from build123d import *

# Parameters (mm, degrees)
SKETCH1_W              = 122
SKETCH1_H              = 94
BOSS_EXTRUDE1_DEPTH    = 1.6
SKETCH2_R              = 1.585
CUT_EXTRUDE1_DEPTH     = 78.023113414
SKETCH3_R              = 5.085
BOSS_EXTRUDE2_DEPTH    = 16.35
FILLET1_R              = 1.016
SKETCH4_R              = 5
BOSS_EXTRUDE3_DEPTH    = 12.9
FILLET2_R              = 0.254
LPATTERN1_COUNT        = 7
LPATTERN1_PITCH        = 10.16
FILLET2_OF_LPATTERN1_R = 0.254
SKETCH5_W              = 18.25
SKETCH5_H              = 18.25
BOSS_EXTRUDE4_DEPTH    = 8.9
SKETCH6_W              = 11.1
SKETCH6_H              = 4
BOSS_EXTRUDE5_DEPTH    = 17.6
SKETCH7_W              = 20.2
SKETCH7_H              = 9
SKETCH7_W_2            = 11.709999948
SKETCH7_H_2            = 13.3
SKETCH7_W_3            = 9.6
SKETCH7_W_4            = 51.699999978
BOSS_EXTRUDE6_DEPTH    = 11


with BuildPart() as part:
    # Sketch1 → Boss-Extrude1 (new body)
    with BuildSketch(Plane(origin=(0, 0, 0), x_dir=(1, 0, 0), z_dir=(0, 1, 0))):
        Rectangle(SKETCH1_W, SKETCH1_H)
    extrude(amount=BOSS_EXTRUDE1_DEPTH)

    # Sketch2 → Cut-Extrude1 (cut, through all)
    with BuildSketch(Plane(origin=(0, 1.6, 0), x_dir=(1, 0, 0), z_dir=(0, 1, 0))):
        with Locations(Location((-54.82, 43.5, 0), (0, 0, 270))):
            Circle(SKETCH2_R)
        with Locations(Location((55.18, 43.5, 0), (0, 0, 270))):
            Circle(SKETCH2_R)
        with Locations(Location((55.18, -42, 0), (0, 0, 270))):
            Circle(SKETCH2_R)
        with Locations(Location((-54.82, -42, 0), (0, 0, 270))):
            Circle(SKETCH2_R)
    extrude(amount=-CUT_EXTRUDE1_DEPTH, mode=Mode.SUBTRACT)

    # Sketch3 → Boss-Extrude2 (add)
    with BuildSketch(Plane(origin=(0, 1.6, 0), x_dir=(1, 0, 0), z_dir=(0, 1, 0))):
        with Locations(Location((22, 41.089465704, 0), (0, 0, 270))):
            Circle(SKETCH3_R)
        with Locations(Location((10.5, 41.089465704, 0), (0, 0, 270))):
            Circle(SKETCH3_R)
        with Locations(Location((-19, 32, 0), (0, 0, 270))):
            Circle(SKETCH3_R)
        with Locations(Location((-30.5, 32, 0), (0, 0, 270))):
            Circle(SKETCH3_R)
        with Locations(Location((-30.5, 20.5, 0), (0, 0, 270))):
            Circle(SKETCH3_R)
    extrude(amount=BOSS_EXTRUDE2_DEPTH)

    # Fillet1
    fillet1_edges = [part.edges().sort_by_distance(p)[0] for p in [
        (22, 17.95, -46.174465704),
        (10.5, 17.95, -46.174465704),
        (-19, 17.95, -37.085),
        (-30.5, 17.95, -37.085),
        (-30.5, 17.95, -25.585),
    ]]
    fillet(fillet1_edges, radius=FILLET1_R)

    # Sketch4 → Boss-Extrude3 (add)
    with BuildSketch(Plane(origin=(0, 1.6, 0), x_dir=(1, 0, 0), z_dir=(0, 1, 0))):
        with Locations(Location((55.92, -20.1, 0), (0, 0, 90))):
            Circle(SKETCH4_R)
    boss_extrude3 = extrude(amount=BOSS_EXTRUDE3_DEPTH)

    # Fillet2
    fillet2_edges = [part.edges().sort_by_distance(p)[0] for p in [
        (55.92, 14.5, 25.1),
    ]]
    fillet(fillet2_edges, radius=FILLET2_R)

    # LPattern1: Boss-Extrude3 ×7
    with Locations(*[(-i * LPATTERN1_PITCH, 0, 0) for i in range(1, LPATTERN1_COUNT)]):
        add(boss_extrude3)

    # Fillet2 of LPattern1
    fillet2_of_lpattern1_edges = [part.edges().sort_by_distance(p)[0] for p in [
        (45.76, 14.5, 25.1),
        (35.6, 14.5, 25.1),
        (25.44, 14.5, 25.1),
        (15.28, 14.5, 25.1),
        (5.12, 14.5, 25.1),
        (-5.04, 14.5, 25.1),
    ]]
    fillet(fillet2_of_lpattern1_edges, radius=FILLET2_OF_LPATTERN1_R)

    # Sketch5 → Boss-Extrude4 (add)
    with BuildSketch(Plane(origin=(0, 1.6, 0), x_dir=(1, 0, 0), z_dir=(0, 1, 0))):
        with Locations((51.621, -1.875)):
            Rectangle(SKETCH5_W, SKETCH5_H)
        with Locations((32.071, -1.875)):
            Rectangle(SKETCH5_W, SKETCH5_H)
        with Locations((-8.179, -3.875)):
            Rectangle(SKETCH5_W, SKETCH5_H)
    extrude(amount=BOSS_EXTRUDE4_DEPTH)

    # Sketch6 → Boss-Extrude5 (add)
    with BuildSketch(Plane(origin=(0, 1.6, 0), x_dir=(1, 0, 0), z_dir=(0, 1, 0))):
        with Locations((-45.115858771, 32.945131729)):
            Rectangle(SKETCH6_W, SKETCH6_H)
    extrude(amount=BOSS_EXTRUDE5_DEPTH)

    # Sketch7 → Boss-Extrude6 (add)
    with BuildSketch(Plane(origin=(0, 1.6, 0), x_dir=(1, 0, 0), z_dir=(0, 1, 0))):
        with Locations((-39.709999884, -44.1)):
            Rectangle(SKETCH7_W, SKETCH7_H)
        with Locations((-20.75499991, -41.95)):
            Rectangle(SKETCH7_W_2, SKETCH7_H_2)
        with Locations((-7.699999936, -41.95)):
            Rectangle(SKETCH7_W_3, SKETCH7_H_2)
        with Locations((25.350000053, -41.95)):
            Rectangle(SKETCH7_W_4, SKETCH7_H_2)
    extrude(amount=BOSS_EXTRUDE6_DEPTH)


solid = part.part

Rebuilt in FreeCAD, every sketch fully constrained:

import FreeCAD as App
import Part
import Sketcher

V = App.Vector
Q = App.Units.Quantity


def edges_at(feature, points):
    """Names of the edges that pass closest to the given points."""
    edges = feature.Shape.Edges
    near = lambda p: min(range(len(edges)), key=lambda i: edges[i].distToShape(Part.Vertex(*p))[0])
    return sorted({f"Edge{near(p) + 1}" for p in points})


def add_polygon(sketch, points):
    """Adds a closed chain of lines whose ends are joined by coincident constraints."""
    first, n = sketch.GeometryCount, len(points)
    for a, b in zip(points, points[1:] + points[:1]):
        sketch.addGeometry(Part.LineSegment(App.Vector(*a, 0), App.Vector(*b, 0)), False)
    for i in range(n):
        sketch.addConstraint(Sketcher.Constraint("Coincident", first + i, 2, first + (i + 1) % n, 1))

doc = App.newDocument("Part")
body = doc.addObject("PartDesign::Body", "Body")

sketch1 = body.newObject("Sketcher::SketchObject", "Sketch")
sketch1.AttachmentSupport = (doc.getObject("XZ_Plane"), [""])
sketch1.MapMode = "FlatFace"
add_polygon(sketch1, [(-61, -47), (-61, 47), (61, 47), (61, -47)])
sketch1.addConstraint([
    Sketcher.Constraint("Vertical", 0),
    Sketcher.Constraint("Horizontal", 1),
    Sketcher.Constraint("Vertical", 2),
    Sketcher.Constraint("Horizontal", 3),
    Sketcher.Constraint("Symmetric", 0, 2, 2, 2, -1, 1),
    Sketcher.Constraint("DistanceX", 1, 1, 1, 2, Q("122 mm")),
    Sketcher.Constraint("DistanceY", 0, 1, 0, 2, Q("94 mm")),
])
pad1 = body.newObject("PartDesign::Pad", "Pad")
pad1.Profile = sketch1
pad1.Length = 1.6
pad1.Reversed = True

sketch2 = body.newObject("Sketcher::SketchObject", "Sketch001")
sketch2.AttachmentSupport = (doc.getObject("XZ_Plane"), [""])
sketch2.MapMode = "FlatFace"
sketch2.AttachmentOffset = App.Placement(V(0, 0, -1.6), App.Rotation())
sketch2.addGeometry([
    Part.Circle(V(-54.8, -43.5, 0), V(0, 0, 1), 1.6),
    Part.Circle(V(55.2, -43.5, 0), V(0, 0, 1), 1.6),
    Part.Circle(V(55.2, 42, 0), V(0, 0, 1), 1.6),
    Part.Circle(V(-54.8, 42, 0), V(0, 0, 1), 1.6),
], False)
sketch2.addConstraint([
    Sketcher.Constraint("Equal", 0, 1),
    Sketcher.Constraint("Equal", 1, 2),
    Sketcher.Constraint("Equal", 2, 3),
    Sketcher.Constraint("Horizontal", 0, 3, 1, 3),
    Sketcher.Constraint("Horizontal", 2, 3, 3, 3),
    Sketcher.Constraint("Vertical", 1, 3, 2, 3),
    Sketcher.Constraint("Vertical", 0, 3, 3, 3),
    Sketcher.Constraint("Diameter", 0, Q("3.17 mm")),
    Sketcher.Constraint("DistanceY", -1, 1, 2, 3, Q("42 mm")),
    Sketcher.Constraint("DistanceX", 0, 3, 1, 3, Q("110 mm")),
    Sketcher.Constraint("DistanceY", 0, 3, -1, 1, Q("43.5 mm")),
    Sketcher.Constraint("DistanceX", 0, 3, -1, 1, Q("54.82 mm")),
])
pocket1 = body.newObject("PartDesign::Pocket", "Pocket")
pocket1.Profile = sketch2
pocket1.Type = "ThroughAll"
pocket1.Reversed = True

sketch3 = body.newObject("Sketcher::SketchObject", "Sketch002")
sketch3.AttachmentSupport = (doc.getObject("XZ_Plane"), [""])
sketch3.MapMode = "FlatFace"
sketch3.AttachmentOffset = App.Placement(V(0, 0, -1.6), App.Rotation())
sketch3.addGeometry([
    Part.Circle(V(22, -41, 0), V(0, 0, 1), 5),
    Part.Circle(V(10, -41, 0), V(0, 0, 1), 5),
    Part.Circle(V(-19, -32, 0), V(0, 0, 1), 5),
    Part.Circle(V(-30, -32, 0), V(0, 0, 1), 5),
    Part.Circle(V(-30, -20, 0), V(0, 0, 1), 5),
], False)
sketch3.addConstraint([
    Sketcher.Constraint("Equal", 0, 1),
    Sketcher.Constraint("Equal", 1, 2),
    Sketcher.Constraint("Equal", 2, 3),
    Sketcher.Constraint("Equal", 3, 4),
    Sketcher.Constraint("Horizontal", 0, 3, 1, 3),
    Sketcher.Constraint("Horizontal", 2, 3, 3, 3),
    Sketcher.Constraint("Vertical", 3, 3, 4, 3),
    Sketcher.Constraint("Diameter", 0, Q("10.17 mm")),
    Sketcher.Constraint("DistanceX", -1, 1, 0, 3, Q("22 mm")),
    Sketcher.Constraint("DistanceX", 2, 3, -1, 1, Q("19 mm")),
    Sketcher.Constraint("DistanceY", 2, 3, -1, 1, Q("32 mm")),
    Sketcher.Constraint("DistanceX", 3, 3, 1, 3, Q("41 mm")),
    Sketcher.Constraint("DistanceX", -1, 1, 1, 3, Q("10.5 mm")),
    Sketcher.Constraint("DistanceY", 4, 3, -1, 1, Q("20.5 mm")),
    Sketcher.Constraint("DistanceY", 0, 3, -1, 1, Q("41.089466 mm")),
])
pad2 = body.newObject("PartDesign::Pad", "Pad001")
pad2.Profile = sketch3
pad2.Length = 16.35
pad2.Reversed = True
doc.recompute()

fillet = body.newObject("PartDesign::Fillet", "Fillet")
fillet.Base = (pad2, edges_at(pad2, [
    (22, 17.95, -46.174),
    (10.5, 17.95, -46.174),
    (-19, 17.95, -37.085),
    (-30.5, 17.95, -37.085),
    (-30.5, 17.95, -25.585),
]))
fillet.Radius = 1.016

sketch4 = body.newObject("Sketcher::SketchObject", "Sketch003")
sketch4.AttachmentSupport = (doc.getObject("XZ_Plane"), [""])
sketch4.MapMode = "FlatFace"
sketch4.AttachmentOffset = App.Placement(V(0, 0, -1.6), App.Rotation())
sketch4.addGeometry(Part.Circle(V(56, 20, 0), V(0, 0, 1), 5), False)
sketch4.addConstraint([
    Sketcher.Constraint("Diameter", 0, Q("10 mm")),
    Sketcher.Constraint("DistanceY", -1, 1, 0, 3, Q("20.1 mm")),
    Sketcher.Constraint("DistanceX", -1, 1, 0, 3, Q("55.92 mm")),
])
pad3 = body.newObject("PartDesign::Pad", "Pad002")
pad3.Profile = sketch4
pad3.Length = 12.9
pad3.Reversed = True
doc.recompute()

fillet2 = body.newObject("PartDesign::Fillet", "Fillet001")
fillet2.Base = (pad3, edges_at(pad3, [(55.92, 14.5, 25.1)]))
fillet2.Radius = 0.254
doc.recompute()

linearpattern = body.newObject("PartDesign::LinearPattern", "LinearPattern")
linearpattern.Originals = [pad3]
linearpattern.Direction = (doc.getObject("X_Axis"), [""])
linearpattern.Mode = "offset"
linearpattern.Offset = 10.16
linearpattern.Occurrences = 7
linearpattern.Reversed = True
body.Tip = linearpattern
doc.recompute()

fillet3 = body.newObject("PartDesign::Fillet", "Fillet002")
fillet3.Base = (linearpattern, edges_at(linearpattern, [
    (45.76, 14.5, 25.1),
    (35.6, 14.5, 25.1),
    (25.44, 14.5, 25.1),
    (15.28, 14.5, 25.1),
    (5.12, 14.5, 25.1),
    (-5.04, 14.5, 25.1),
]))
fillet3.Radius = 0.254

sketch5 = body.newObject("Sketcher::SketchObject", "Sketch004")
sketch5.AttachmentSupport = (doc.getObject("XZ_Plane"), [""])
sketch5.MapMode = "FlatFace"
sketch5.AttachmentOffset = App.Placement(V(0, 0, -1.6), App.Rotation())
add_polygon(sketch5, [(42, -7), (42, 11), (61, 11), (61, -7)])
add_polygon(sketch5, [(23, -7), (23, 11), (41, 11), (41, -7)])
add_polygon(sketch5, [(-17, -5), (-17, 13), (1, 13), (1, -5)])
sketch5.addConstraint([
    Sketcher.Constraint("Vertical", 0),
    Sketcher.Constraint("Horizontal", 1),
    Sketcher.Constraint("Vertical", 2),
    Sketcher.Constraint("Horizontal", 3),
    Sketcher.Constraint("Vertical", 4),
    Sketcher.Constraint("Horizontal", 5),
    Sketcher.Constraint("Vertical", 6),
    Sketcher.Constraint("Horizontal", 7),
    Sketcher.Constraint("Vertical", 8),
    Sketcher.Constraint("Horizontal", 9),
    Sketcher.Constraint("Vertical", 10),
    Sketcher.Constraint("Horizontal", 11),
    Sketcher.Constraint("Horizontal", 1, 2, 4, 2),
    Sketcher.Constraint("Horizontal", 3, 2, 6, 2),
    Sketcher.Constraint("Equal", 3, 5),
    Sketcher.Constraint("Equal", 7, 9),
    Sketcher.Constraint("Equal", 11, 0),
    Sketcher.Constraint("Equal", 6, 8),
    Sketcher.Constraint("DistanceY", -1, 1, 0, 2, Q("11 mm")),
    Sketcher.Constraint("DistanceY", -1, 1, 8, 2, Q("13 mm")),
    Sketcher.Constraint("DistanceX", 9, 2, 4, 2, Q("22 mm")),
    Sketcher.Constraint("DistanceX", 1, 1, 1, 2, Q("18.25 mm")),
    Sketcher.Constraint("DistanceX", 4, 2, 1, 2, Q("37.8 mm")),
    Sketcher.Constraint("DistanceX", -1, 1, 0, 2, Q("42.496 mm")),
])
pad4 = body.newObject("PartDesign::Pad", "Pad003")
pad4.Profile = sketch5
pad4.Length = 8.9
pad4.Reversed = True

sketch6 = body.newObject("Sketcher::SketchObject", "Sketch005")
sketch6.AttachmentSupport = (doc.getObject("XZ_Plane"), [""])
sketch6.MapMode = "FlatFace"
sketch6.AttachmentOffset = App.Placement(V(0, 0, -1.6), App.Rotation())
add_polygon(sketch6, [(-50.7, -34.9), (-50.7, -30.9), (-39.6, -30.9), (-39.6, -34.9)])
sketch6.addConstraint([
    Sketcher.Constraint("Vertical", 0),
    Sketcher.Constraint("Horizontal", 1),
    Sketcher.Constraint("Vertical", 2),
    Sketcher.Constraint("Horizontal", 3),
    Sketcher.Constraint("DistanceY", 0, 1, 0, 2, Q("4 mm")),
    Sketcher.Constraint("DistanceX", 1, 1, 1, 2, Q("11.1 mm")),
    Sketcher.Constraint("DistanceX", 0, 2, -1, 1, Q("50.665859 mm")),
    Sketcher.Constraint("DistanceY", 0, 2, -1, 1, Q("30.945132 mm")),
])
pad5 = body.newObject("PartDesign::Pad", "Pad004")
pad5.Profile = sketch6
pad5.Length = 17.6
pad5.Reversed = True

sketch7 = body.newObject("Sketcher::SketchObject", "Sketch006")
sketch7.AttachmentSupport = (doc.getObject("XZ_Plane"), [""])
sketch7.MapMode = "FlatFace"
sketch7.AttachmentOffset = App.Placement(V(0, 0, -1.6), App.Rotation())
add_polygon(sketch7, [(-50, 40), (-50, 49), (-30, 49), (-30, 40)])
add_polygon(sketch7, [(-27, 35), (-27, 49), (-15, 49), (-15, 35)])
add_polygon(sketch7, [(-12, 35), (-12, 49), (-3, 49), (-3, 35)])
add_polygon(sketch7, [(0, 35), (0, 49), (51, 49), (51, 35)])
sketch7.addConstraint([
    Sketcher.Constraint("Vertical", 0),
    Sketcher.Constraint("Horizontal", 1),
    Sketcher.Constraint("Vertical", 2),
    Sketcher.Constraint("Horizontal", 3),
    Sketcher.Constraint("Vertical", 4),
    Sketcher.Constraint("Horizontal", 5),
    Sketcher.Constraint("Vertical", 6),
    Sketcher.Constraint("Horizontal", 7),
    Sketcher.Constraint("Vertical", 8),
    Sketcher.Constraint("Horizontal", 9),
    Sketcher.Constraint("Vertical", 10),
    Sketcher.Constraint("Horizontal", 11),
    Sketcher.Constraint("Vertical", 12),
    Sketcher.Constraint("Horizontal", 13),
    Sketcher.Constraint("Vertical", 14),
    Sketcher.Constraint("Horizontal", 15),
    Sketcher.Constraint("Horizontal", 1, 2, 4, 2),
    Sketcher.Constraint("Horizontal", 5, 2, 8, 2),
    Sketcher.Constraint("Horizontal", 7, 2, 10, 2),
    Sketcher.Constraint("Horizontal", 9, 2, 12, 2),
    Sketcher.Constraint("Horizontal", 11, 2, 14, 2),
    Sketcher.Constraint("DistanceY", 0, 1, 0, 2, Q("9 mm")),
    Sketcher.Constraint("DistanceX", 1, 1, 1, 2, Q("20.2 mm")),
    Sketcher.Constraint("DistanceX", 9, 1, 9, 2, Q("9.6 mm")),
    Sketcher.Constraint("DistanceX", 13, 1, 13, 2, Q("51.7 mm")),
    Sketcher.Constraint("DistanceY", 4, 1, 4, 2, Q("13.3 mm")),
    Sketcher.Constraint("DistanceX", 1, 2, 4, 2, Q("3 mm")),
    Sketcher.Constraint("DistanceX", 5, 2, 9, 2, Q("12 mm")),
    Sketcher.Constraint("DistanceX", 8, 2, 12, 2, Q("12 mm")),
    Sketcher.Constraint("DistanceX", 5, 1, 5, 2, Q("11.71 mm")),
    Sketcher.Constraint("DistanceY", -1, 1, 0, 2, Q("48.6 mm")),
    Sketcher.Constraint("DistanceX", 5, 2, -1, 1, Q("14.9 mm")),
])
pad6 = body.newObject("PartDesign::Pad", "Pad005")
pad6.Profile = sketch7
pad6.Length = 11
pad6.Reversed = True

doc.recompute()
